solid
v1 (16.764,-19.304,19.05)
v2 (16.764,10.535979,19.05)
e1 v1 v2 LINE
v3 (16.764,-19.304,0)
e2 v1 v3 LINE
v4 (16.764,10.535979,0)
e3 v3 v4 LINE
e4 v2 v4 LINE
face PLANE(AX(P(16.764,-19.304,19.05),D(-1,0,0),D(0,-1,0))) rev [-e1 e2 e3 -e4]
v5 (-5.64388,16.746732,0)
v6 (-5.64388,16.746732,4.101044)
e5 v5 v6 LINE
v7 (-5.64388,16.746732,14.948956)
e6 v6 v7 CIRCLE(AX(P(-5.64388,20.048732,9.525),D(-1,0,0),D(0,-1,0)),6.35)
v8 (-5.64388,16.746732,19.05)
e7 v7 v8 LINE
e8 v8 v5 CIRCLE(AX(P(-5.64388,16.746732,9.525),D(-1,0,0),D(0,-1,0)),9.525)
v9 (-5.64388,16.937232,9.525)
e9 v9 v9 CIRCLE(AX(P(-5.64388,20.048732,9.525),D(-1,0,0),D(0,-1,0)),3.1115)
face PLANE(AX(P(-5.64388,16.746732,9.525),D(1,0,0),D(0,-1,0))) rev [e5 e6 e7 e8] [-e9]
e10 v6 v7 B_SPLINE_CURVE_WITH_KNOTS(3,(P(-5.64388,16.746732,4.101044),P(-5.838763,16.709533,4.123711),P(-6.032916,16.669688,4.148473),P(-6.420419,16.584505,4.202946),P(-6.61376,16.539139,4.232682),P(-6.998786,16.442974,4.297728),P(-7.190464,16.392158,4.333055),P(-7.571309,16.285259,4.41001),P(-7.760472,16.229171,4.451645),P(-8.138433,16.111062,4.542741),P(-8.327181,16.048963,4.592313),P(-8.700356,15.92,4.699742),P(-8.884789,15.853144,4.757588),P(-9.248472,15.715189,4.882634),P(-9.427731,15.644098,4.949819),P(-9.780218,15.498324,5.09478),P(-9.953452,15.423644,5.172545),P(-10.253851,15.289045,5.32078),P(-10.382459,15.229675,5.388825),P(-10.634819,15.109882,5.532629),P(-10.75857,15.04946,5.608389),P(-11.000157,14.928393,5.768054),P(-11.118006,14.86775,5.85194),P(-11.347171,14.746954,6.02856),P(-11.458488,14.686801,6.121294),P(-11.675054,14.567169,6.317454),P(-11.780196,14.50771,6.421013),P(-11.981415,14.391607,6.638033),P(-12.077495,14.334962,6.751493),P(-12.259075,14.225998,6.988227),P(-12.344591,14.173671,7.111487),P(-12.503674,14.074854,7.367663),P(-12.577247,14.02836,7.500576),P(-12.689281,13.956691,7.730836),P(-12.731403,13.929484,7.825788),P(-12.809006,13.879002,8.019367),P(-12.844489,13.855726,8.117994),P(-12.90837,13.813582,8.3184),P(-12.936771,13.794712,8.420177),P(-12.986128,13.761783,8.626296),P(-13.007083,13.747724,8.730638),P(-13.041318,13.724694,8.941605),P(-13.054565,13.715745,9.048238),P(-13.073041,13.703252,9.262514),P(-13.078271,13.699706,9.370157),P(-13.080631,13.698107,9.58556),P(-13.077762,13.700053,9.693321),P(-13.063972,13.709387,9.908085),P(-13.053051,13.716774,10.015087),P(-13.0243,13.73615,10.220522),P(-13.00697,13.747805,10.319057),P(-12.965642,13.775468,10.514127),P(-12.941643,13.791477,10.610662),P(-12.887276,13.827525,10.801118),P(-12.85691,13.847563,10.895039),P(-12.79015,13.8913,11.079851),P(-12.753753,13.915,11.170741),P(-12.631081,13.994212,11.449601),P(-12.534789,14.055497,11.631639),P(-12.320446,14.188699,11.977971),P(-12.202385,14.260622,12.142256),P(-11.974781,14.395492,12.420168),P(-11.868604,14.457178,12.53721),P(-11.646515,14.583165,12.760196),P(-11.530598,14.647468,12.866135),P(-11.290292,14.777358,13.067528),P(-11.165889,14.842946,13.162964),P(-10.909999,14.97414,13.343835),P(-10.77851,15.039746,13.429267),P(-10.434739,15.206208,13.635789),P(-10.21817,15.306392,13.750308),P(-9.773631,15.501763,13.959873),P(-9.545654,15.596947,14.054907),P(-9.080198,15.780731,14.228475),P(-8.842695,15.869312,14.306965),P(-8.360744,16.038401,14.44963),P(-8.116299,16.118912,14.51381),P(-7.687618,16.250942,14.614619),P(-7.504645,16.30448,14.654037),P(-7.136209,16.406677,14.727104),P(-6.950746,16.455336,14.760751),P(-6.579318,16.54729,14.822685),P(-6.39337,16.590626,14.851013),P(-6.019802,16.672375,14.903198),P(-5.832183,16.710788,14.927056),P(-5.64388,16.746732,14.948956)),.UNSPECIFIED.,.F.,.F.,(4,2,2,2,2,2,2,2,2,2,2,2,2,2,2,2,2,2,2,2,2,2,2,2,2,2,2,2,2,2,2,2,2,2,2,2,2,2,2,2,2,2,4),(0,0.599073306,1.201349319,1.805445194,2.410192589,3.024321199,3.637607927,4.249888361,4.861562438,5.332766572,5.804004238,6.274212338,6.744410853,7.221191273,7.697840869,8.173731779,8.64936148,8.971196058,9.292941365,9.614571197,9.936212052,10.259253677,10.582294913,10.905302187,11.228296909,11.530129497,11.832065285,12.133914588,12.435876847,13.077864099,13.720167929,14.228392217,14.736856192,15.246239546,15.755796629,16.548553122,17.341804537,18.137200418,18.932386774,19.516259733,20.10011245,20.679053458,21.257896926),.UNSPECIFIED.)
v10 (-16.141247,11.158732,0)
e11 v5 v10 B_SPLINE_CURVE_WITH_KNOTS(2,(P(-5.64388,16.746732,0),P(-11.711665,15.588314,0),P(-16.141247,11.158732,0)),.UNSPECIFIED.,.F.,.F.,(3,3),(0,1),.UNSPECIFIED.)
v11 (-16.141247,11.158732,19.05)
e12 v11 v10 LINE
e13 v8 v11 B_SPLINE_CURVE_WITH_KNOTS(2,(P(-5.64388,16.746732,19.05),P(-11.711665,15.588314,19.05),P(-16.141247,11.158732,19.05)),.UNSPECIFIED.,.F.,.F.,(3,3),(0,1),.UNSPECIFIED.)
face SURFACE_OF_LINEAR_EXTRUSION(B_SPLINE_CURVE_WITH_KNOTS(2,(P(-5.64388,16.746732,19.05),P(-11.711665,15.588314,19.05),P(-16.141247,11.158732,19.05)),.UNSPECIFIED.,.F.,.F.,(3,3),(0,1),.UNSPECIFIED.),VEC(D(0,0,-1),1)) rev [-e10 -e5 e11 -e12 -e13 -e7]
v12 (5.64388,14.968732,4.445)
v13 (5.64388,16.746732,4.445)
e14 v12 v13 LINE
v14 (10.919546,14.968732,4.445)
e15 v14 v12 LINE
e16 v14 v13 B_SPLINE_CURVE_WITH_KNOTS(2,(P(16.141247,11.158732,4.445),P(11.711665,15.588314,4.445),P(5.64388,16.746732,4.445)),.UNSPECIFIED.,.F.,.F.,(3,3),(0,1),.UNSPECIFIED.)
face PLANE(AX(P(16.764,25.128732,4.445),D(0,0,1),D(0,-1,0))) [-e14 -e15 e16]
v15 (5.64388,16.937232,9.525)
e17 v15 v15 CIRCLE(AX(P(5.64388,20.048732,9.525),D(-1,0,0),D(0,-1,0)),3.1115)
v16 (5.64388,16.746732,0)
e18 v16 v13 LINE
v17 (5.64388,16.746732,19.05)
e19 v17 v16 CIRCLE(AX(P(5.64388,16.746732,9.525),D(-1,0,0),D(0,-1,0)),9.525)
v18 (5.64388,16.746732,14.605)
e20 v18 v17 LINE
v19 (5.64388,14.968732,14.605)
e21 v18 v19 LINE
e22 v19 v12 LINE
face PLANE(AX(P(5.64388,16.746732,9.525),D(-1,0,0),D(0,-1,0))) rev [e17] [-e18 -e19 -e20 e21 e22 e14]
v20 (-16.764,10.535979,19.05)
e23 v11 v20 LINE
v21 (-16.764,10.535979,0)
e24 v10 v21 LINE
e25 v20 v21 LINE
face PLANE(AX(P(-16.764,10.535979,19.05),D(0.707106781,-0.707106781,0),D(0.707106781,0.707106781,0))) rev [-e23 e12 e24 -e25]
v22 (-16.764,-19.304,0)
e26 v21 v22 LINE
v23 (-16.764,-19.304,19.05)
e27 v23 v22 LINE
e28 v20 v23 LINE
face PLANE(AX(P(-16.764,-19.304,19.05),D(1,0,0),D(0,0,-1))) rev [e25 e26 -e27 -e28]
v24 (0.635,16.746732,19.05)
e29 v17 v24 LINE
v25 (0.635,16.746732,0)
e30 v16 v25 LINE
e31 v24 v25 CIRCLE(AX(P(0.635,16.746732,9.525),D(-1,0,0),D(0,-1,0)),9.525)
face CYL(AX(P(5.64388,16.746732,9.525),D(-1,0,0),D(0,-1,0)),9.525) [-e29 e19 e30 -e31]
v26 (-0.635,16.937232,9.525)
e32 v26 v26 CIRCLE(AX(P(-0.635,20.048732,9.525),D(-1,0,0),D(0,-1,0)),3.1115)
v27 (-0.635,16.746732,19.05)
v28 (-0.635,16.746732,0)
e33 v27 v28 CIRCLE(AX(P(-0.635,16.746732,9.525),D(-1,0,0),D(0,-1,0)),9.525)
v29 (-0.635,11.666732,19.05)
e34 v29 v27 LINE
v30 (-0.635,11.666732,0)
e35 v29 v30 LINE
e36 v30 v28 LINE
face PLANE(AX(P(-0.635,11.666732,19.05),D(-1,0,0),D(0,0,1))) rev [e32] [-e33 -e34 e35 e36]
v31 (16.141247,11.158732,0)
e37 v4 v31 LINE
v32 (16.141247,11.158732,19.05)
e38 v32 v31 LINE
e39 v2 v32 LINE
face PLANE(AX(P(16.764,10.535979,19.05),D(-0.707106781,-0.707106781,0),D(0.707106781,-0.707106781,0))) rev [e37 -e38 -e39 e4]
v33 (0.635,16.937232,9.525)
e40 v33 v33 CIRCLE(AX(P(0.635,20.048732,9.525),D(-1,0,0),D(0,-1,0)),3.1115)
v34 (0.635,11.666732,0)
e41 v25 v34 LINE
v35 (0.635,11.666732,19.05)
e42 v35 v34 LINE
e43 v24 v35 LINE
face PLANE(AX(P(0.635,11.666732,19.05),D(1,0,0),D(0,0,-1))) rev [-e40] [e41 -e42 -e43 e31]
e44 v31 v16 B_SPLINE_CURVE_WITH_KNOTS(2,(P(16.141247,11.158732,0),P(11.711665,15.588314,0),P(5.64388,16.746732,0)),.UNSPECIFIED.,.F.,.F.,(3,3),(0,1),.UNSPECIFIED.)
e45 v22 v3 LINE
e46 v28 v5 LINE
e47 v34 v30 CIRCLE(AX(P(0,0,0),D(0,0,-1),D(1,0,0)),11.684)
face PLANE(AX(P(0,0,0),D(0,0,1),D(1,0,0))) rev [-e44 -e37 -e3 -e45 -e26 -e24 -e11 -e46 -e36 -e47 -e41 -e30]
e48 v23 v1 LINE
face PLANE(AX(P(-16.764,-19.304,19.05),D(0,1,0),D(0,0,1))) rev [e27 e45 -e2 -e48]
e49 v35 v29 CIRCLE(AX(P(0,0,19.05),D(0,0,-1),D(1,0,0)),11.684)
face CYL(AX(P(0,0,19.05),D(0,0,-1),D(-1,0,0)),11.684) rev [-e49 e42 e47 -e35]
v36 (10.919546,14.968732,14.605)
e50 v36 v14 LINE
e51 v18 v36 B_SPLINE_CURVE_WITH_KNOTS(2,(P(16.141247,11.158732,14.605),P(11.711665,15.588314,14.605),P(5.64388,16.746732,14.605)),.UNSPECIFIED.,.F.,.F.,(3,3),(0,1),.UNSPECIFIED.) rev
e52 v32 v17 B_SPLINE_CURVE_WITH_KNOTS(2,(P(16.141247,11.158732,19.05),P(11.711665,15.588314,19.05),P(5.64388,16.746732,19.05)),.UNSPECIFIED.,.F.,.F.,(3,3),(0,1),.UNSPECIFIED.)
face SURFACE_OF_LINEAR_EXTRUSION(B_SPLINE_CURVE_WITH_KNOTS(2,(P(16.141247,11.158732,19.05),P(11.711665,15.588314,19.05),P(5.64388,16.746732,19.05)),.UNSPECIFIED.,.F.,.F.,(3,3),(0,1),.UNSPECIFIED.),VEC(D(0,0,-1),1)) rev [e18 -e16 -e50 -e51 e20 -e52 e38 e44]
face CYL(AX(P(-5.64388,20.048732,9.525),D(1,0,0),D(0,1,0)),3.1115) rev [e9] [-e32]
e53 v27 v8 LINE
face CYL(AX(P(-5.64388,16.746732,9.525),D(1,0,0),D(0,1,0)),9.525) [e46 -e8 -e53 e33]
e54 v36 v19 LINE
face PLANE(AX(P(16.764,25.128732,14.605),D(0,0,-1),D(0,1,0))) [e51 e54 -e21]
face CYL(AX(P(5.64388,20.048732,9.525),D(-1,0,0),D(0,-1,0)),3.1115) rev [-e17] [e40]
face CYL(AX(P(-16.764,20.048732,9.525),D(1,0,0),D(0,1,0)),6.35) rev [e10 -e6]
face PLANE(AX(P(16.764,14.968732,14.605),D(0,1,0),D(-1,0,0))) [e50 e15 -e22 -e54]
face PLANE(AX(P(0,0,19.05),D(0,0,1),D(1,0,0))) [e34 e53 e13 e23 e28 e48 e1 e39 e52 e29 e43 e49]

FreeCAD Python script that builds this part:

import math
import FreeCAD as App
import Part
import Sketcher
Q = App.Units.Quantity

doc = App.newDocument("Part")
body = doc.addObject("PartDesign::Body", "Body")

sketch1 = body.newObject("Sketcher::SketchObject", "Sketch")
sketch1.AttachmentSupport = (doc.getObject("XY_Plane"), [""])
sketch1.MapMode = "FlatFace"
sketch1.addGeometry([
    Part.LineSegment(App.Vector(-13.6, 13.6, 0), App.Vector(-16.8, 10.5, 0)),
    Part.LineSegment(App.Vector(-16.8, 10.5, 0), App.Vector(-16.8, -19.3, 0)),
    Part.LineSegment(App.Vector(-16.8, -19.3, 0), App.Vector(16.8, -19.3, 0)),
    Part.LineSegment(App.Vector(16.8, -19.3, 0), App.Vector(16.8, 10.5, 0)),
    Part.LineSegment(App.Vector(16.8, 10.5, 0), App.Vector(13.6, 13.6, 0)),
    Part.ArcOfCircle(Part.Circle(App.Vector(0, 0, 0), App.Vector(0, 0, 1), 19.3), math.radians(45), math.radians(60.17)),
    Part.LineSegment(App.Vector(9.6, 16.7, 0), App.Vector(0.6, 16.7, 0)),
    Part.LineSegment(App.Vector(0.6, 16.7, 0), App.Vector(0.6, 11.7, 0)),
    Part.ArcOfCircle(Part.Circle(App.Vector(0, 0, 0), App.Vector(0, 0, 1), 11.7), math.radians(93), math.radians(447)),
    Part.LineSegment(App.Vector(-0.6, 11.7, 0), App.Vector(-0.6, 16.7, 0)),
    Part.LineSegment(App.Vector(-0.6, 16.7, 0), App.Vector(-9.6, 16.7, 0)),
    Part.ArcOfCircle(Part.Circle(App.Vector(0, 0, 0), App.Vector(0, 0, 1), 19.3), math.radians(119.83), math.radians(135)),
], False)
sketch1.addConstraint([
    Sketcher.Constraint("Coincident", 0, 2, 1, 1),
    Sketcher.Constraint("Coincident", 1, 2, 2, 1),
    Sketcher.Constraint("Coincident", 2, 2, 3, 1),
    Sketcher.Constraint("Coincident", 3, 2, 4, 1),
    Sketcher.Constraint("Tangent", 4, 2, 5, 1),
    Sketcher.Constraint("Coincident", 5, 2, 6, 1),
    Sketcher.Constraint("Coincident", 6, 2, 7, 1),
    Sketcher.Constraint("Coincident", 7, 2, 8, 2),
    Sketcher.Constraint("Coincident", 8, 1, 9, 1),
    Sketcher.Constraint("Coincident", 9, 2, 10, 1),
    Sketcher.Constraint("Coincident", 10, 2, 11, 1),
    Sketcher.Constraint("Tangent", 11, 2, 0, 1),
    Sketcher.Constraint("Vertical", 1),
    Sketcher.Constraint("Horizontal", 2),
    Sketcher.Constraint("Vertical", 3),
    Sketcher.Constraint("Horizontal", 6),
    Sketcher.Constraint("Vertical", 7),
    Sketcher.Constraint("Vertical", 9),
    Sketcher.Constraint("Horizontal", 10),
    Sketcher.Constraint("Coincident", 5, 3, -1, 1),
    Sketcher.Constraint("Coincident", 8, 3, -1, 1),
    Sketcher.Constraint("Coincident", 11, 3, -1, 1),
    Sketcher.Constraint("Equal", 5, 11),
    Sketcher.Constraint("Symmetric", 0, 2, 3, 2, -2),
    Sketcher.Constraint("Symmetric", 6, 2, 9, 2, -2),
    Sketcher.Constraint("Perpendicular", 0, 4),
    Sketcher.Constraint("Radius", 5, Q("0.76 in")),
    Sketcher.Constraint("Radius", 8, Q("0.46 in")),
    Sketcher.Constraint("DistanceY", 7, 2, 7, 1, Q("0.2 in")),
    Sketcher.Constraint("DistanceX", 2, 1, 2, 2, Q("1.32 in")),
    Sketcher.Constraint("DistanceY", 1, 2, -1, 1, Q("0.76 in")),
    Sketcher.Constraint("DistanceX", 8, 1, 7, 2, Q("0.05 in")),
])
pad1 = body.newObject("PartDesign::Pad", "Pad")
pad1.Profile = sketch1
pad1.Length = Q("0.75 in")

sketch2 = body.newObject("Sketcher::SketchObject", "Sketch001")
sketch2.AttachmentSupport = (doc.getObject("YZ_Plane"), [""])
sketch2.MapMode = "FlatFace"
sketch2.AttachmentOffset = App.Placement(App.Vector(0, 0, 0.025 * 25.4), App.Rotation())
sketch2.addGeometry([
    Part.LineSegment(App.Vector(16.7, 0, 0), App.Vector(16.7, 19.1, 0)),
    Part.ArcOfCircle(Part.Circle(App.Vector(16.7, 9.5, 0), App.Vector(0, 0, 1), 9.5), math.radians(-90), math.radians(90)),
    Part.Circle(App.Vector(20, 9.5, 0), App.Vector(0, 0, 1), 3.1),
], False)
sketch2.addConstraint([
    Sketcher.Constraint("Coincident", 0, 1, 1, 1),
    Sketcher.Constraint("Coincident", 1, 2, 0, 2),
    Sketcher.Constraint("Vertical", 0),
    Sketcher.Constraint("PointOnObject", 0, 1, -1),
    Sketcher.Constraint("Horizontal", 1, 3, 2, 3),
    Sketcher.Constraint("Vertical", 1, 3, 0, 1),
    Sketcher.Constraint("Diameter", 2, Q("0.245 in")),
    Sketcher.Constraint("Radius", 1, Q("0.375 in")),
    Sketcher.Constraint("DistanceX", 1, 3, 2, 3, Q("0.13 in")),
    Sketcher.Constraint("DistanceX", -1, 1, 1, 3, 16.746732),
])
pad2 = body.newObject("PartDesign::Pad", "Pad001")
pad2.Profile = sketch2
pad2.Length = Q("0.1972 in")
doc.recompute()

mirrored = body.newObject("PartDesign::Mirrored", "Mirrored")
mirrored.Originals = [pad2]
mirrored.MirrorPlane = (doc.getObject("YZ_Plane"), [""])
body.Tip = mirrored

sketch3 = body.newObject("Sketcher::SketchObject", "Sketch002")
sketch3.AttachmentSupport = (doc.getObject("XY_Plane"), [""])
sketch3.MapMode = "FlatFace"
sketch3.addGeometry([
    Part.LineSegment(App.Vector(16.141247, 17.710334, 0), App.Vector(16.141247, 11.158732, 0)),
    Part.BSplineCurve([App.Vector(5.64388, 16.746732, 0), App.Vector(11.711665, 15.588314, 0), App.Vector(16.141247, 11.158732, 0)], [3, 3], [0, 1], False, 2, [1, 1, 1], False),
    Part.LineSegment(App.Vector(5.64388, 16.746732, 0), App.Vector(16.141247, 17.710334, 0)),
    Part.LineSegment(App.Vector(-16.141247, 17.710334, 0), App.Vector(-5.64388, 16.746732, 0)),
    Part.BSplineCurve([App.Vector(-5.64388, 16.746732, 0), App.Vector(-11.711665, 15.588314, 0), App.Vector(-16.141247, 11.158732, 0)], [3, 3], [0, 1], False, 2, [1, 1, 1], False),
    Part.LineSegment(App.Vector(-16.141247, 11.158732, 0), App.Vector(-16.141247, 17.710334, 0)),
], False)
sketch3.addConstraint([
    Sketcher.Constraint("Block", 1),
    Sketcher.Constraint("Block", 4),
    Sketcher.Constraint("Coincident", 0, 2, 1, 2),
    Sketcher.Constraint("Coincident", 1, 1, 2, 1),
    Sketcher.Constraint("Coincident", 2, 2, 0, 1),
    Sketcher.Constraint("Coincident", 3, 2, 4, 1),
    Sketcher.Constraint("Coincident", 4, 2, 5, 1),
    Sketcher.Constraint("Coincident", 5, 2, 3, 1),
    Sketcher.Constraint("Vertical", 0),
    Sketcher.Constraint("Vertical", 5),
    Sketcher.Constraint("Horizontal", 2, 2, 5, 2),
    Sketcher.Constraint("DistanceY", 0, 2, 0, 1, 6.551602),
])
pocket1 = body.newObject("PartDesign::Pocket", "Pocket")
pocket1.Profile = sketch3
pocket1.Type = "ThroughAll"
pocket1.Reversed = True

sketch4 = body.newObject("Sketcher::SketchObject", "Sketch003")
sketch4.AttachmentSupport = (doc.getObject("YZ_Plane"), [""])
sketch4.MapMode = "FlatFace"
sketch4.AttachmentOffset = App.Placement(App.Vector(0, 0, -0.2222 * 25.4), App.Rotation())
sketch4.addGeometry(Part.Circle(App.Vector(20, 10, 0), App.Vector(0, 0, 1), 6), False)
sketch4.addConstraint([
    Sketcher.Constraint("Diameter", 0, Q("0.5 in")),
    Sketcher.Constraint("DistanceY", -1, 1, 0, 3, Q("0.375 in")),
    Sketcher.Constraint("DistanceX", -1, 1, 0, 3, 20.048732),
])
pocket2 = body.newObject("PartDesign::Pocket", "Pocket001")
pocket2.Profile = sketch4
pocket2.Type = "ThroughAll"

sketch5 = body.newObject("Sketcher::SketchObject", "Sketch004")
sketch5.AttachmentSupport = (doc.getObject("YZ_Plane"), [""])
sketch5.MapMode = "FlatFace"
sketch5.AttachmentOffset = App.Placement(App.Vector(0, 0, 0.2222 * 25.4), App.Rotation())
sketch5.addGeometry([
    Part.LineSegment(App.Vector(25, 15, 0), App.Vector(15, 15, 0)),
    Part.LineSegment(App.Vector(15, 15, 0), App.Vector(15, 4, 0)),
    Part.LineSegment(App.Vector(15, 4, 0), App.Vector(25, 4, 0)),
    Part.LineSegment(App.Vector(25, 4, 0), App.Vector(25, 15, 0)),
], False)
sketch5.addConstraint([
    Sketcher.Constraint("Coincident", 0, 2, 1, 1),
    Sketcher.Constraint("Coincident", 1, 2, 2, 1),
    Sketcher.Constraint("Coincident", 2, 2, 3, 1),
    Sketcher.Constraint("Coincident", 3, 2, 0, 1),
    Sketcher.Constraint("Horizontal", 0),
    Sketcher.Constraint("Vertical", 1),
    Sketcher.Constraint("Horizontal", 2),
    Sketcher.Constraint("Vertical", 3),
    Sketcher.Constraint("Equal", 2, 1),
    Sketcher.Constraint("DistanceX", 0, 2, 0, 1, Q("0.4 in")),
    Sketcher.Constraint("DistanceY", -1, 1, 0, 2, Q("0.575 in")),
    Sketcher.Constraint("DistanceX", -1, 1, 0, 2, 14.968732),
])
pocket3 = body.newObject("PartDesign::Pocket", "Pocket002")
pocket3.Profile = sketch5
pocket3.Type = "ThroughAll"
pocket3.Reversed = True

doc.recompute()
